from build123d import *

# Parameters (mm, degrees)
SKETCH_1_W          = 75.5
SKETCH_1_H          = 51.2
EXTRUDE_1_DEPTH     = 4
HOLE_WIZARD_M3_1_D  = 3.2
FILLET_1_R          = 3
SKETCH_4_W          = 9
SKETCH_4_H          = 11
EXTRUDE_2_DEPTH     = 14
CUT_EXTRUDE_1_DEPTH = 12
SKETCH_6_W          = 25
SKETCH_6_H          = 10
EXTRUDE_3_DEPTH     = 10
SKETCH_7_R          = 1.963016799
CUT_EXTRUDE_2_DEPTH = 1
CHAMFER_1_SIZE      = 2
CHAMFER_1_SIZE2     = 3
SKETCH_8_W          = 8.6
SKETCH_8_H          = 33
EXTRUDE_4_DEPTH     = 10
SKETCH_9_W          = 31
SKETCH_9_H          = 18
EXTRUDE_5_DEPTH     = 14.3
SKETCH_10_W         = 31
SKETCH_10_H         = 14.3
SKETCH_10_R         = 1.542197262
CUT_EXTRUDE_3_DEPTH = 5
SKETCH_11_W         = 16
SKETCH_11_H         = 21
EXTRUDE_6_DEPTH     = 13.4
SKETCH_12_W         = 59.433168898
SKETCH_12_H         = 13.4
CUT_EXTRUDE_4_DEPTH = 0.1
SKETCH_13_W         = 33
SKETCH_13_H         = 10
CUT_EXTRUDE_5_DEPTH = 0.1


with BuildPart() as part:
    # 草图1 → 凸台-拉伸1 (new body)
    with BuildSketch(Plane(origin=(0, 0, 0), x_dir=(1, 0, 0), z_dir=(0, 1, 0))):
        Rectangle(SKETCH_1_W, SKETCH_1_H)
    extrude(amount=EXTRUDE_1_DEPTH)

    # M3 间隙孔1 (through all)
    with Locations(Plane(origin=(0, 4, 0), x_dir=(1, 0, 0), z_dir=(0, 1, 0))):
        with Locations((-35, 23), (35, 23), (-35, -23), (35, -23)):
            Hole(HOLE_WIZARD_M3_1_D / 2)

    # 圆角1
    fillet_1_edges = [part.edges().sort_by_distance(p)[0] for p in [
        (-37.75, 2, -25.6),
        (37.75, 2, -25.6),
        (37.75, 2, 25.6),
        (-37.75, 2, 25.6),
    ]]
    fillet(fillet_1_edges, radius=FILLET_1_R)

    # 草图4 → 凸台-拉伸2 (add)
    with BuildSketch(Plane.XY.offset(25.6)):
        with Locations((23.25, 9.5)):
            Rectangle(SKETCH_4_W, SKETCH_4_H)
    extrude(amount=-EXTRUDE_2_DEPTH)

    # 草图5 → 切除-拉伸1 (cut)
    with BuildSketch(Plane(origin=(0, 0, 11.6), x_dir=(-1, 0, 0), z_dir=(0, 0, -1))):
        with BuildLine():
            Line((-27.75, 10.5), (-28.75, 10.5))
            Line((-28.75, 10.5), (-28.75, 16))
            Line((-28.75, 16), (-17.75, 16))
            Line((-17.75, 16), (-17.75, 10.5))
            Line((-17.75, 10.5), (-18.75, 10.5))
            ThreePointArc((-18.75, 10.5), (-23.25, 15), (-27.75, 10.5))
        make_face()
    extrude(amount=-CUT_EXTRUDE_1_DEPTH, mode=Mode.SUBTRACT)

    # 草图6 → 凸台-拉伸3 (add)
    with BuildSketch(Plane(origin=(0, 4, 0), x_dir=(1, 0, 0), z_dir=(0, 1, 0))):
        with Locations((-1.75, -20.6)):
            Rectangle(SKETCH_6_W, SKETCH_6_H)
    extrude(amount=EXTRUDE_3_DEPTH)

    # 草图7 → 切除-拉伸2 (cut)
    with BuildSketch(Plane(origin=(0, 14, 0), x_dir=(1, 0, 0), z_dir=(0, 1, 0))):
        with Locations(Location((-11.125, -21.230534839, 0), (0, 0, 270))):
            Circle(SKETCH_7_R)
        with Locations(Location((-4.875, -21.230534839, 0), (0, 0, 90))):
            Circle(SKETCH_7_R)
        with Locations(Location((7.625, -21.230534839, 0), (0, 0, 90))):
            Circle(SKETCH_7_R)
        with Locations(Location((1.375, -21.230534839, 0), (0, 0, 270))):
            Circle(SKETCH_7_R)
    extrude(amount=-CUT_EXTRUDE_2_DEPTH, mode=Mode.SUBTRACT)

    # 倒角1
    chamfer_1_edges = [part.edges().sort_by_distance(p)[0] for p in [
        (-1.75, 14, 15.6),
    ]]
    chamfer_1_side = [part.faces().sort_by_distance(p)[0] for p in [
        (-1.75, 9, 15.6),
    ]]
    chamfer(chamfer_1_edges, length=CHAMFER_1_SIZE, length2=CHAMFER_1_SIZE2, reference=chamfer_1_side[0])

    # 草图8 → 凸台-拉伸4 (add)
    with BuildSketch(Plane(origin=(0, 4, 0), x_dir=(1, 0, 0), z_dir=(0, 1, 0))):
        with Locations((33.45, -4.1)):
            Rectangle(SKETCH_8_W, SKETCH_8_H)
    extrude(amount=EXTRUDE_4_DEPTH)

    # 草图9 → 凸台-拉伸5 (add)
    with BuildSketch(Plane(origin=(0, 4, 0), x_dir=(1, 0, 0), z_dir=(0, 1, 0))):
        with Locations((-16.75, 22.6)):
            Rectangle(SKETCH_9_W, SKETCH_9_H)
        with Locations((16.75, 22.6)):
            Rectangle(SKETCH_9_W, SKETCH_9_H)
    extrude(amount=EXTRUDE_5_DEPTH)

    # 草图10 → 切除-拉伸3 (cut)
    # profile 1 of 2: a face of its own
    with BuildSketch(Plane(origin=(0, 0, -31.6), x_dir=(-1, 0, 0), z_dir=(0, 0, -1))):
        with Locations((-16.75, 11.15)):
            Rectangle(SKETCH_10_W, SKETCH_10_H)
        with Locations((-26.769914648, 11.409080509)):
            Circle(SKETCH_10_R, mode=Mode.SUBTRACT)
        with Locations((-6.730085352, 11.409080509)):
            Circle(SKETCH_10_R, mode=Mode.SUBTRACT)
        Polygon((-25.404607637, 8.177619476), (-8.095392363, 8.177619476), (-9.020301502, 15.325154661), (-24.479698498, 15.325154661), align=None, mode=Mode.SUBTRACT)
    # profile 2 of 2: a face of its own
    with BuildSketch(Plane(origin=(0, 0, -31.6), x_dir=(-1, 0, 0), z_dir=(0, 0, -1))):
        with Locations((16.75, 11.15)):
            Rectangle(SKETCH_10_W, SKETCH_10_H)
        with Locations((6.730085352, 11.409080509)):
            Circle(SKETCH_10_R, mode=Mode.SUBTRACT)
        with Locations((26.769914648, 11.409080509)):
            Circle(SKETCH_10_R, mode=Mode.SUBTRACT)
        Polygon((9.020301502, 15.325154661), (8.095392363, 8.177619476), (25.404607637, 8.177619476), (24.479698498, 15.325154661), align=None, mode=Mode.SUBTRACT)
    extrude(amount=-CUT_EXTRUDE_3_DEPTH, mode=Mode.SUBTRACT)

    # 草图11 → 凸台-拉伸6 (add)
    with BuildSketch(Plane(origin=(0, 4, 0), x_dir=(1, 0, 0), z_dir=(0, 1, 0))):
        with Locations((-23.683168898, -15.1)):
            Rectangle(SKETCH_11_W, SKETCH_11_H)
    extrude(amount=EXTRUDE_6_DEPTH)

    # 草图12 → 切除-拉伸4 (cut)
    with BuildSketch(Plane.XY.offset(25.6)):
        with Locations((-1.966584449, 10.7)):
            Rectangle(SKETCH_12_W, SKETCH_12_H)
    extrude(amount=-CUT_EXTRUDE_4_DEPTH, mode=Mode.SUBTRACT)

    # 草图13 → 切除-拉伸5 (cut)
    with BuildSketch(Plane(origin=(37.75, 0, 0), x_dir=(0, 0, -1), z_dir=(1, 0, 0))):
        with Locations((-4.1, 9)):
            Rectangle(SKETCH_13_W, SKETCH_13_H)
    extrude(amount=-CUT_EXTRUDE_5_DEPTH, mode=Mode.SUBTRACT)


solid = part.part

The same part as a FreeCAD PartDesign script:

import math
import FreeCAD as App
import Part
import Sketcher

V = App.Vector
Q = App.Units.Quantity


def edges_at(feature, points):
    """Names of the edges that pass closest to the given points."""
    edges = feature.Shape.Edges
    near = lambda p: min(range(len(edges)), key=lambda i: edges[i].distToShape(Part.Vertex(*p))[0])
    return sorted({f"Edge{near(p) + 1}" for p in points})


def add_polygon(sketch, points):
    """Adds a closed chain of lines whose ends are joined by coincident constraints."""
    first, n = sketch.GeometryCount, len(points)
    for a, b in zip(points, points[1:] + points[:1]):
        sketch.addGeometry(Part.LineSegment(App.Vector(*a, 0), App.Vector(*b, 0)), False)
    for i in range(n):
        sketch.addConstraint(Sketcher.Constraint("Coincident", first + i, 2, first + (i + 1) % n, 1))

doc = App.newDocument("Part")
body = doc.addObject("PartDesign::Body", "Body")

# Sketch on XZ plane
sketch1 = body.newObject("Sketcher::SketchObject", "Sketch")
sketch1.AttachmentSupport = (doc.getObject("XZ_Plane"), [""])
sketch1.MapMode = "FlatFace"
add_polygon(sketch1, [(-38, -26), (-38, 26), (38, 26), (38, -26)])  # lines 0-3
sketch1.addConstraint([
    Sketcher.Constraint("Vertical", 0),
    Sketcher.Constraint("Horizontal", 1),
    Sketcher.Constraint("Vertical", 2),
    Sketcher.Constraint("Horizontal", 3),
    Sketcher.Constraint("Symmetric", 0, 2, 2, 2, -1, 1),
    Sketcher.Constraint("DistanceX", 1, 1, 1, 2, Q("75.5 mm")),
    Sketcher.Constraint("DistanceY", 0, 1, 0, 2, Q("51.2 mm")),
])
pad1 = body.newObject("PartDesign::Pad", "Pad")
pad1.Profile = sketch1
pad1.Length = 4
pad1.Reversed = True

# Sketch on XZ plane
sketch2 = body.newObject("Sketcher::SketchObject", "Sketch001")
sketch2.AttachmentSupport = (doc.getObject("XZ_Plane"), [""])
sketch2.MapMode = "FlatFace"
sketch2.AttachmentOffset = App.Placement(V(0, 0, -4), App.Rotation())
sketch2.addGeometry([
    Part.Circle(V(-35, -23, 0), V(0, 0, 1), 1.6),
    Part.Circle(V(35, -23, 0), V(0, 0, 1), 1.6),
    Part.Circle(V(-35, 23, 0), V(0, 0, 1), 1.6),
    Part.Circle(V(35, 23, 0), V(0, 0, 1), 1.6),
], False)
sketch2.addConstraint([
    Sketcher.Constraint("Equal", 0, 1),
    Sketcher.Constraint("Equal", 1, 2),
    Sketcher.Constraint("Equal", 2, 3),
    Sketcher.Constraint("Symmetric", 1, 3, 2, 3, -1, 1),
    Sketcher.Constraint("Symmetric", 0, 3, 3, 3, -1, 1),
    Sketcher.Constraint("Symmetric", 0, 3, 1, 3, -2),
    Sketcher.Constraint("Diameter", 0, Q("3.2 mm")),
    Sketcher.Constraint("DistanceX", 0, 3, -1, 1, Q("35 mm")),
    Sketcher.Constraint("DistanceY", 0, 3, -1, 1, Q("23 mm")),
])
doc.recompute()
hole = body.newObject("PartDesign::Hole", "Hole")
hole.Profile = sketch2
hole.ThreadType = "None"
hole.Diameter = 3.2
hole.DepthType = "ThroughAll"
hole.Reversed = True
doc.recompute()

fillet = body.newObject("PartDesign::Fillet", "Fillet")
fillet.Base = (hole, edges_at(hole, [
    (-37.75, 2, -25.6),
    (37.75, 2, -25.6),
    (37.75, 2, 25.6),
    (-37.75, 2, 25.6),
]))
fillet.Radius = 3

# Sketch on XY plane
sketch3 = body.newObject("Sketcher::SketchObject", "Sketch002")
sketch3.AttachmentSupport = (doc.getObject("XY_Plane"), [""])
sketch3.MapMode = "FlatFace"
sketch3.AttachmentOffset = App.Placement(V(0, 0, 25.6), App.Rotation())
add_polygon(sketch3, [(19, 15), (19, 4), (28, 4), (28, 15)])  # lines 0-3
sketch3.addConstraint([
    Sketcher.Constraint("Vertical", 0),
    Sketcher.Constraint("Horizontal", 1),
    Sketcher.Constraint("Vertical", 2),
    Sketcher.Constraint("Horizontal", 3),
    Sketcher.Constraint("DistanceX", 1, 1, 1, 2, Q("9 mm")),
    Sketcher.Constraint("DistanceY", 0, 2, 0, 1, Q("11 mm")),
    Sketcher.Constraint("DistanceY", -1, 1, 0, 2, Q("4 mm")),
    Sketcher.Constraint("DistanceX", -1, 1, 0, 2, Q("18.75 mm")),
])
pad2 = body.newObject("PartDesign::Pad", "Pad001")
pad2.Profile = sketch3
pad2.Length = 14
pad2.Reversed = True

# Sketch on XY plane
sketch4 = body.newObject("Sketcher::SketchObject", "Sketch003")
sketch4.AttachmentSupport = (doc.getObject("XY_Plane"), [""])
sketch4.MapMode = "FlatFace"
sketch4.AttachmentOffset = App.Placement(V(0, 0, 11.6), App.Rotation())
sketch4.addGeometry([
    Part.LineSegment(V(28.8, 10.5, 0), V(27.8, 10.5, 0)),  # 0
    Part.ArcOfCircle(Part.Circle(V(23.2, 10.5, 0), V(0, 0, 1), 4.5), math.radians(0), math.radians(180)),  # 1
    Part.LineSegment(V(18.8, 10.5, 0), V(17.8, 10.5, 0)),  # 2
    Part.LineSegment(V(17.8, 10.5, 0), V(17.8, 16, 0)),  # 3
    Part.LineSegment(V(17.8, 16, 0), V(28.8, 16, 0)),  # 4
    Part.LineSegment(V(28.8, 16, 0), V(28.8, 10.5, 0)),  # 5
], False)
sketch4.addConstraint([
    Sketcher.Constraint("Coincident", 0, 2, 1, 1),
    Sketcher.Constraint("Coincident", 1, 2, 2, 1),
    Sketcher.Constraint("Coincident", 2, 2, 3, 1),
    Sketcher.Constraint("Coincident", 3, 2, 4, 1),
    Sketcher.Constraint("Coincident", 4, 2, 5, 1),
    Sketcher.Constraint("Coincident", 5, 2, 0, 1),
    Sketcher.Constraint("Horizontal", 0),
    Sketcher.Constraint("Horizontal", 2),
    Sketcher.Constraint("Vertical", 3),
    Sketcher.Constraint("Horizontal", 4),
    Sketcher.Constraint("Vertical", 5),
    Sketcher.Constraint("Horizontal", 1, 3, 0, 2),
    Sketcher.Constraint("Horizontal", 0, 2, 1, 2),
    Sketcher.Constraint("Equal", 0, 2),
    Sketcher.Constraint("Radius", 1, Q("4.5 mm")),
    Sketcher.Constraint("DistanceX", 0, 2, 0, 1, Q("1 mm")),
    Sketcher.Constraint("DistanceY", 3, 1, 3, 2, Q("5.5 mm")),
    Sketcher.Constraint("DistanceY", -1, 1, 3, 2, Q("16 mm")),
    Sketcher.Constraint("DistanceX", -1, 1, 1, 3, Q("23.25 mm")),
])
pocket1 = body.newObject("PartDesign::Pocket", "Pocket")
pocket1.Profile = sketch4
pocket1.Length = 12
pocket1.Reversed = True

# Sketch on XZ plane
sketch5 = body.newObject("Sketcher::SketchObject", "Sketch004")
sketch5.AttachmentSupport = (doc.getObject("XZ_Plane"), [""])
sketch5.MapMode = "FlatFace"
sketch5.AttachmentOffset = App.Placement(V(0, 0, -4), App.Rotation())
add_polygon(sketch5, [(-14, 16), (-14, 26), (11, 26), (11, 16)])  # lines 0-3
sketch5.addConstraint([
    Sketcher.Constraint("Vertical", 0),
    Sketcher.Constraint("Horizontal", 1),
    Sketcher.Constraint("Vertical", 2),
    Sketcher.Constraint("Horizontal", 3),
    Sketcher.Constraint("DistanceX", 1, 1, 1, 2, Q("25 mm")),
    Sketcher.Constraint("DistanceY", 0, 1, 0, 2, Q("10 mm")),
    Sketcher.Constraint("DistanceY", -1, 1, 0, 2, Q("25.6 mm")),
    Sketcher.Constraint("DistanceX", 0, 2, -1, 1, Q("14.25 mm")),
])
pad3 = body.newObject("PartDesign::Pad", "Pad002")
pad3.Profile = sketch5
pad3.Length = 10
pad3.Reversed = True

# Sketch on XZ plane
sketch6 = body.newObject("Sketcher::SketchObject", "Sketch005")
sketch6.AttachmentSupport = (doc.getObject("XZ_Plane"), [""])
sketch6.MapMode = "FlatFace"
sketch6.AttachmentOffset = App.Placement(V(0, 0, -14), App.Rotation())
sketch6.addGeometry([
    Part.Circle(V(-11.1, 21.2, 0), V(0, 0, 1), 2),
    Part.Circle(V(-4.9, 21.2, 0), V(0, 0, 1), 2),
    Part.Circle(V(7.6, 21.2, 0), V(0, 0, 1), 2),
    Part.Circle(V(1.4, 21.2, 0), V(0, 0, 1), 2),
], False)
sketch6.addConstraint([
    Sketcher.Constraint("Equal", 0, 1),
    Sketcher.Constraint("Equal", 1, 2),
    Sketcher.Constraint("Equal", 2, 3),
    Sketcher.Constraint("Horizontal", 0, 3, 1, 3),
    Sketcher.Constraint("Horizontal", 1, 3, 2, 3),
    Sketcher.Constraint("Horizontal", 2, 3, 3, 3),
    Sketcher.Constraint("DistanceX", 1, 3, 2, 3, Q("12.5 mm")),
    Sketcher.Constraint("DistanceX", 0, 3, 3, 3, Q("12.5 mm")),
    Sketcher.Constraint("DistanceX", 0, 3, 1, 3, Q("6.25 mm")),
    Sketcher.Constraint("Diameter", 0, Q("3.926034 mm")),
    Sketcher.Constraint("DistanceX", 0, 3, -1, 1, Q("11.125 mm")),
    Sketcher.Constraint("DistanceY", -1, 1, 0, 3, Q("21.230535 mm")),
])
pocket2 = body.newObject("PartDesign::Pocket", "Pocket001")
pocket2.Profile = sketch6
pocket2.Length = 1
pocket2.Reversed = True
doc.recompute()

chamfer = body.newObject("PartDesign::Chamfer", "Chamfer")
chamfer.Base = (pocket2, edges_at(pocket2, [(-1.75, 14, 15.6)]))
chamfer.ChamferType = "Two distances"
chamfer.Size = 2
chamfer.Size2 = 3

# Sketch on XZ plane
sketch7 = body.newObject("Sketcher::SketchObject", "Sketch006")
sketch7.AttachmentSupport = (doc.getObject("XZ_Plane"), [""])
sketch7.MapMode = "FlatFace"
sketch7.AttachmentOffset = App.Placement(V(0, 0, -4), App.Rotation())
add_polygon(sketch7, [(29, -12), (29, 21), (38, 21), (38, -12)])  # lines 0-3
sketch7.addConstraint([
    Sketcher.Constraint("Vertical", 0),
    Sketcher.Constraint("Horizontal", 1),
    Sketcher.Constraint("Vertical", 2),
    Sketcher.Constraint("Horizontal", 3),
    Sketcher.Constraint("DistanceY", 0, 1, 0, 2, Q("33 mm")),
    Sketcher.Constraint("DistanceX", 1, 1, 1, 2, Q("8.6 mm")),
    Sketcher.Constraint("DistanceY", -1, 1, 0, 2, Q("20.6 mm")),
    Sketcher.Constraint("DistanceX", -1, 1, 0, 2, Q("29.15 mm")),
])
pad4 = body.newObject("PartDesign::Pad", "Pad003")
pad4.Profile = sketch7
pad4.Length = 10
pad4.Reversed = True

# Sketch on XZ plane
sketch8 = body.newObject("Sketcher::SketchObject", "Sketch007")
sketch8.AttachmentSupport = (doc.getObject("XZ_Plane"), [""])
sketch8.MapMode = "FlatFace"
sketch8.AttachmentOffset = App.Placement(V(0, 0, -4), App.Rotation())
add_polygon(sketch8, [(-32, -32), (-32, -14), (-1, -14), (-1, -32)])  # lines 0-3
add_polygon(sketch8, [(1, -32), (1, -14), (32, -14), (32, -32)])  # lines 4-7
sketch8.addConstraint([
    Sketcher.Constraint("Vertical", 0),
    Sketcher.Constraint("Horizontal", 1),
    Sketcher.Constraint("Vertical", 2),
    Sketcher.Constraint("Horizontal", 3),
    Sketcher.Constraint("Vertical", 4),
    Sketcher.Constraint("Horizontal", 5),
    Sketcher.Constraint("Vertical", 6),
    Sketcher.Constraint("Horizontal", 7),
    Sketcher.Constraint("Symmetric", 1, 2, 4, 2, -2),
    Sketcher.Constraint("Symmetric", 3, 2, 6, 2, -2),
    Sketcher.Constraint("DistanceX", 1, 1, 1, 2, Q("31 mm")),
    Sketcher.Constraint("DistanceY", 0, 1, 0, 2, Q("18 mm")),
    Sketcher.Constraint("DistanceY", 0, 2, -1, 1, Q("13.6 mm")),
    Sketcher.Constraint("DistanceX", 1, 2, 4, 2, Q("2.5 mm")),
])
pad5 = body.newObject("PartDesign::Pad", "Pad004")
pad5.Profile = sketch8
pad5.Length = 14.3
pad5.Reversed = True

# Sketch on XY plane
sketch9 = body.newObject("Sketcher::SketchObject", "Sketch008")
sketch9.AttachmentSupport = (doc.getObject("XY_Plane"), [""])
sketch9.MapMode = "FlatFace"
sketch9.AttachmentOffset = App.Placement(V(0, 0, -31.6), App.Rotation())
add_polygon(sketch9, [(32.2, 18.3), (32.2, 4), (1.2, 4), (1.2, 18.3)])  # lines 0-3
sketch9.addGeometry(Part.Circle(V(26.8, 11.4, 0), V(0, 0, 1), 1.5), False)  # 4
sketch9.addGeometry(Part.Circle(V(6.7, 11.4, 0), V(0, 0, 1), 1.5), False)  # 5
add_polygon(sketch9, [(8.1, 8.2), (25.4, 8.2), (24.5, 15.3), (9, 15.3)])  # lines 6-9
add_polygon(sketch9, [(-1.2, 18.3), (-1.2, 4), (-32.2, 4), (-32.2, 18.3)])  # lines 10-13
sketch9.addGeometry(Part.Circle(V(-6.7, 11.4, 0), V(0, 0, 1), 1.5), False)  # 14
sketch9.addGeometry(Part.Circle(V(-26.8, 11.4, 0), V(0, 0, 1), 1.5), False)  # 15
add_polygon(sketch9, [(-8.1, 8.2), (-9, 15.3), (-24.5, 15.3), (-25.4, 8.2)])  # lines 16-19
sketch9.addConstraint([
    Sketcher.Constraint("Vertical", 0),
    Sketcher.Constraint("Horizontal", 1),
    Sketcher.Constraint("Vertical", 2),
    Sketcher.Constraint("Horizontal", 3),
    Sketcher.Constraint("Horizontal", 6),
    Sketcher.Constraint("Horizontal", 8),
    Sketcher.Constraint("Vertical", 10),
    Sketcher.Constraint("Horizontal", 11),
    Sketcher.Constraint("Vertical", 12),
    Sketcher.Constraint("Horizontal", 13),
    Sketcher.Constraint("Horizontal", 17),
    Sketcher.Constraint("Horizontal", 19),
    Sketcher.Constraint("Equal", 4, 5),
    Sketcher.Constraint("Equal", 5, 14),
    Sketcher.Constraint("Equal", 14, 15),
    Sketcher.Constraint("Symmetric", 5, 3, 14, 3, -2),
    Sketcher.Constraint("Symmetric", 4, 3, 15, 3, -2),
    Sketcher.Constraint("Symmetric", 1, 2, 10, 2, -2),
    Sketcher.Constraint("Symmetric", 3, 2, 12, 2, -2),
    Sketcher.Constraint("Symmetric", 8, 2, 16, 2, -2),
    Sketcher.Constraint("Symmetric", 6, 2, 18, 2, -2),
    Sketcher.Constraint("Parallel", 7, 16),
    Sketcher.Constraint("Parallel", 9, 18),
    Sketcher.Constraint("Horizontal", 4, 3, 5, 3),
    Sketcher.Constraint("Equal", 8, 17),
    Sketcher.Constraint("DistanceX", 1, 2, 1, 1, Q("31 mm")),
    Sketcher.Constraint("DistanceY", 0, 2, 0, 1, Q("14.3 mm")),
    Sketcher.Constraint("DistanceY", -1, 1, 0, 2, Q("4 mm")),
    Sketcher.Constraint("DistanceX", 14, 3, 4, 3, Q("33.5 mm")),
    Sketcher.Constraint("DistanceX", 10, 2, 1, 2, Q("2.5 mm")),
    Sketcher.Constraint("Diameter", 4, Q("3.084395 mm")),
    Sketcher.Constraint("DistanceX", -1, 1, 7, 2, Q("24.479698 mm")),
    Sketcher.Constraint("DistanceX", -1, 1, 8, 2, Q("9.020302 mm")),
    Sketcher.Constraint("Distance", 7, Q("7.20713 mm")),
    Sketcher.Constraint("DistanceX", 6, 1, 6, 2, Q("17.309215 mm")),
    Sketcher.Constraint("DistanceY", -1, 1, 4, 3, Q("11.409081 mm")),
    Sketcher.Constraint("DistanceY", -1, 1, 6, 2, Q("8.177619 mm")),
    Sketcher.Constraint("DistanceX", 5, 3, 4, 3, Q("20.039829 mm")),
])
pocket3 = body.newObject("PartDesign::Pocket", "Pocket002")
pocket3.Profile = sketch9
pocket3.Length = 5
pocket3.Reversed = True

# Sketch on XZ plane
sketch10 = body.newObject("Sketcher::SketchObject", "Sketch009")
sketch10.AttachmentSupport = (doc.getObject("XZ_Plane"), [""])
sketch10.MapMode = "FlatFace"
sketch10.AttachmentOffset = App.Placement(V(0, 0, -4), App.Rotation())
add_polygon(sketch10, [(-32, 5), (-32, 26), (-16, 26), (-16, 5)])  # lines 0-3
sketch10.addConstraint([
    Sketcher.Constraint("Vertical", 0),
    Sketcher.Constraint("Horizontal", 1),
    Sketcher.Constraint("Vertical", 2),
    Sketcher.Constraint("Horizontal", 3),
    Sketcher.Constraint("DistanceX", 1, 1, 1, 2, Q("16 mm")),
    Sketcher.Constraint("DistanceY", 0, 1, 0, 2, Q("21 mm")),
    Sketcher.Constraint("DistanceY", -1, 1, 0, 2, Q("25.6 mm")),
    Sketcher.Constraint("DistanceX", 0, 2, -1, 1, Q("31.683169 mm")),
])
pad6 = body.newObject("PartDesign::Pad", "Pad005")
pad6.Profile = sketch10
pad6.Length = 13.4
pad6.Reversed = True

# Sketch on XY plane
sketch11 = body.newObject("Sketcher::SketchObject", "Sketch010")
sketch11.AttachmentSupport = (doc.getObject("XY_Plane"), [""])
sketch11.MapMode = "FlatFace"
sketch11.AttachmentOffset = App.Placement(V(0, 0, 25.6), App.Rotation())
add_polygon(sketch11, [(-32, 17), (-32, 4), (28, 4), (28, 17)])  # lines 0-3
sketch11.addConstraint([
    Sketcher.Constraint("Vertical", 0),
    Sketcher.Constraint("Horizontal", 1),
    Sketcher.Constraint("Vertical", 2),
    Sketcher.Constraint("Horizontal", 3),
    Sketcher.Constraint("DistanceY", 0, 2, 0, 1, Q("13.4 mm")),
    Sketcher.Constraint("DistanceY", -1, 1, 0, 2, Q("4 mm")),
    Sketcher.Constraint("DistanceX", -1, 1, 1, 2, Q("27.75 mm")),
    Sketcher.Constraint("DistanceX", 1, 1, 1, 2, Q("59.433169 mm")),
])
pocket4 = body.newObject("PartDesign::Pocket", "Pocket003")
pocket4.Profile = sketch11
pocket4.Length = 0.1

# Sketch on YZ plane
sketch12 = body.newObject("Sketcher::SketchObject", "Sketch011")
sketch12.AttachmentSupport = (doc.getObject("YZ_Plane"), [""])
sketch12.MapMode = "FlatFace"
sketch12.AttachmentOffset = App.Placement(V(0, 0, 37.75), App.Rotation())
add_polygon(sketch12, [(14, 21), (4, 21), (4, -12), (14, -12)])  # lines 0-3
sketch12.addConstraint([
    Sketcher.Constraint("Horizontal", 0),
    Sketcher.Constraint("Vertical", 1),
    Sketcher.Constraint("Horizontal", 2),
    Sketcher.Constraint("Vertical", 3),
    Sketcher.Constraint("DistanceX", 0, 2, 0, 1, Q("10 mm")),
    Sketcher.Constraint("DistanceY", 1, 2, 1, 1, Q("33 mm")),
    Sketcher.Constraint("DistanceX", -1, 1, 0, 2, Q("4 mm")),
    Sketcher.Constraint("DistanceY", -1, 1, 0, 2, Q("20.6 mm")),
])
pocket5 = body.newObject("PartDesign::Pocket", "Pocket004")
pocket5.Profile = sketch12
pocket5.Length = 0.1

doc.recompute()
